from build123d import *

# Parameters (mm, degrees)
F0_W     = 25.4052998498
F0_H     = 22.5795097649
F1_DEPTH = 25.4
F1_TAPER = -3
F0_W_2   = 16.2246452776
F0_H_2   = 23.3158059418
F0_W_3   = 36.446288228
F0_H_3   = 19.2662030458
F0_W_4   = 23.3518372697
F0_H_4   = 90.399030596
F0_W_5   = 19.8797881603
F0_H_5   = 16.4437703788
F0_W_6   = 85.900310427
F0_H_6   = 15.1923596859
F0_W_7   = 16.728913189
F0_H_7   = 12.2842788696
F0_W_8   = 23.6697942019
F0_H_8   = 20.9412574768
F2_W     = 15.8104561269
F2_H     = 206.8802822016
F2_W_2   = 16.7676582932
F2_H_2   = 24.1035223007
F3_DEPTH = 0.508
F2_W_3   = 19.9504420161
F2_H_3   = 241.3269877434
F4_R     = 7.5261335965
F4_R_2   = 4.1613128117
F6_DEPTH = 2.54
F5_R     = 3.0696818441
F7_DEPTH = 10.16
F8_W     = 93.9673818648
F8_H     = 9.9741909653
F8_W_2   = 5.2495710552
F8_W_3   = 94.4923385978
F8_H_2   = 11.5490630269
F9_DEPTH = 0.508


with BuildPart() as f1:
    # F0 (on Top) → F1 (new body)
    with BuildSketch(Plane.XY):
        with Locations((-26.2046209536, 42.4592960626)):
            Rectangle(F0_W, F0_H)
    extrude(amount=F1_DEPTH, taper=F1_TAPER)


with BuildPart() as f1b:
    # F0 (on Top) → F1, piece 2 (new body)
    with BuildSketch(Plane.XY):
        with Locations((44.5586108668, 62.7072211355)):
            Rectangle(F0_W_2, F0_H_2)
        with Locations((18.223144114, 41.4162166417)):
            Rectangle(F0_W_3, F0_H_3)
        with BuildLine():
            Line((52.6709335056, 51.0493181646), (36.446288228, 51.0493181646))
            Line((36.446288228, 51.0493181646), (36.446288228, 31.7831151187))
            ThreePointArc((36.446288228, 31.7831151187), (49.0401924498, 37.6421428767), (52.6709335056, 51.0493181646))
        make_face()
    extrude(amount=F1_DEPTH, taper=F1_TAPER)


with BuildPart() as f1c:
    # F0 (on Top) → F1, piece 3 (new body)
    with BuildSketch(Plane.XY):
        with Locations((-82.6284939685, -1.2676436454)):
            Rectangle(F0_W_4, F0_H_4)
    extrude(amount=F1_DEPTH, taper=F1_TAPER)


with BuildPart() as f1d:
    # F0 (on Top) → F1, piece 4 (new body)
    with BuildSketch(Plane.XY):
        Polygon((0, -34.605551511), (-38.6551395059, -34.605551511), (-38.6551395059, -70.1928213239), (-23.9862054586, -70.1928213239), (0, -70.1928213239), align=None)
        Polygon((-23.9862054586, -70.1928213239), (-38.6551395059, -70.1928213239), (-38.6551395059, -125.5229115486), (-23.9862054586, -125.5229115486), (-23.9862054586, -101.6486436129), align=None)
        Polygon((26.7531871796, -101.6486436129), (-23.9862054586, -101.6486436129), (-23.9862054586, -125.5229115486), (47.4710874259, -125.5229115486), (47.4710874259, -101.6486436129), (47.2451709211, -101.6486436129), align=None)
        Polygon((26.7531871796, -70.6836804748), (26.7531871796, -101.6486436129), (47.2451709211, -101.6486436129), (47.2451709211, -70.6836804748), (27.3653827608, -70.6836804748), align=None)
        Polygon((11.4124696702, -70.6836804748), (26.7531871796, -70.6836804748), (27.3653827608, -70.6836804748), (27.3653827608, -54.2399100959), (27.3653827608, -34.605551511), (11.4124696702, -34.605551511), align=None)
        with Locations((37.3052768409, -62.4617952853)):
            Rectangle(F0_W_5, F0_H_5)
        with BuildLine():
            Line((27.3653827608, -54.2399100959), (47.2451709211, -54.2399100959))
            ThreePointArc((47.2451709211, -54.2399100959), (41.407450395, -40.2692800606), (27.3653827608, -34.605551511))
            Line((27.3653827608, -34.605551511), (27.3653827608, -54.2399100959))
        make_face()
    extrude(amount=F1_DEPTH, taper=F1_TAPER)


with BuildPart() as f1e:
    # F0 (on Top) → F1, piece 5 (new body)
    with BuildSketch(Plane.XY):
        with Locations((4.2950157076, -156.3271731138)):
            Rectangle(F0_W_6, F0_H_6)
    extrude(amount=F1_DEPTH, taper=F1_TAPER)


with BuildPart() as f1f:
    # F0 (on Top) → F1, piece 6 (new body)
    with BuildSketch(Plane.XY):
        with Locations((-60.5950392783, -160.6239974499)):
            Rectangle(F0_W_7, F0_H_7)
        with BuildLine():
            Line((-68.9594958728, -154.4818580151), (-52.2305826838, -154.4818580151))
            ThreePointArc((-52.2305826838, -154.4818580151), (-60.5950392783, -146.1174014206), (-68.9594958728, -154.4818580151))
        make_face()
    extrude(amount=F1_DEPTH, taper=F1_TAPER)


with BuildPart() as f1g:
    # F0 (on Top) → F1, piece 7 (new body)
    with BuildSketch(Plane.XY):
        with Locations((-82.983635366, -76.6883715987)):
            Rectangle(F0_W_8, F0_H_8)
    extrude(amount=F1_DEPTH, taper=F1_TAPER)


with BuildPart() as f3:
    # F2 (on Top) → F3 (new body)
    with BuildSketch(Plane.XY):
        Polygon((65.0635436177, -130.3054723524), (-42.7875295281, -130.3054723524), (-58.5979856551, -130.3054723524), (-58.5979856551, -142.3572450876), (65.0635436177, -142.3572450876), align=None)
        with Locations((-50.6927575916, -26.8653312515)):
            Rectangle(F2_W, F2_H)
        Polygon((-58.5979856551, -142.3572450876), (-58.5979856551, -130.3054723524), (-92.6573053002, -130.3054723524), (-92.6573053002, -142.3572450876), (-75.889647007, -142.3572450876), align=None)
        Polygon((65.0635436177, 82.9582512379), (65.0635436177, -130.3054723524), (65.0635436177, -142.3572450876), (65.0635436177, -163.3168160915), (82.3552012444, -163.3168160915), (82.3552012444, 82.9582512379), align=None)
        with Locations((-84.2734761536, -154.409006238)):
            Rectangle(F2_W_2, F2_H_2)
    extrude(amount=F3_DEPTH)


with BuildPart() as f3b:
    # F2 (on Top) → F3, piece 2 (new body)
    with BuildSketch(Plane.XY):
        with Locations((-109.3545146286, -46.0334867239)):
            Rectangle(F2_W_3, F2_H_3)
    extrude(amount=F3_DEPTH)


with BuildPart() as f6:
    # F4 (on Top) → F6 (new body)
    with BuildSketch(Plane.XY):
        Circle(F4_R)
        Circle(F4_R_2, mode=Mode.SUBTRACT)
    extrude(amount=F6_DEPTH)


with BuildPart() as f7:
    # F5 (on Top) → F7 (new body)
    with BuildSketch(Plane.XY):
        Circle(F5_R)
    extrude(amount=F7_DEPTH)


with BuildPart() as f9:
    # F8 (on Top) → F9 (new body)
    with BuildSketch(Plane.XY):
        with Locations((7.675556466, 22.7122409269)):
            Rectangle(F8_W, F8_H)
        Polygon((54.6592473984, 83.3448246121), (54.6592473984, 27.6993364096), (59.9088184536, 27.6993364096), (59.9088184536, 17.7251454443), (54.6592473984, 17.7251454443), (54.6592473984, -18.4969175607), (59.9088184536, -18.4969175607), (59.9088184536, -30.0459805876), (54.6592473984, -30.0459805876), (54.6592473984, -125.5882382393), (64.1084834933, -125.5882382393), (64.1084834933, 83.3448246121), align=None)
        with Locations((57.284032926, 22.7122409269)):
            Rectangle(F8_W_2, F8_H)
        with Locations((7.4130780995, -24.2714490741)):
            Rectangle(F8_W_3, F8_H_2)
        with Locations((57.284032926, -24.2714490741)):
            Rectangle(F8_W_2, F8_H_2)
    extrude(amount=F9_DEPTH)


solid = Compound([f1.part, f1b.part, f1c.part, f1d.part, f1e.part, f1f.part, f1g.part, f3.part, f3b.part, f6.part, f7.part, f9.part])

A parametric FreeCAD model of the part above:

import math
import FreeCAD as App
import Part
import Sketcher

V = App.Vector


def add_polygon(sketch, points):
    """Adds a closed chain of lines whose ends are joined by coincident constraints."""
    first, n = sketch.GeometryCount, len(points)
    for a, b in zip(points, points[1:] + points[:1]):
        sketch.addGeometry(Part.LineSegment(App.Vector(*a, 0), App.Vector(*b, 0)), False)
    for i in range(n):
        sketch.addConstraint(Sketcher.Constraint("Coincident", first + i, 2, first + (i + 1) % n, 1))

doc = App.newDocument("Part")
params = doc.addObject("Spreadsheet::Sheet", "Params")
for row, (alias, value) in enumerate([
    ("pad1_length", "1 in"),
    ("pad1_taper", "3 deg"),
    ("pad2_length", "1 in"),
    ("pad2_taper", "3 deg"),
    ("pad3_length", "1 in"),
    ("pad3_taper", "3 deg"),
    ("pad4_length", "1 in"),
    ("pad4_taper", "3 deg"),
    ("pad5_length", "1 in"),
    ("pad5_taper", "3 deg"),
    ("pad6_length", "1 in"),
    ("pad6_taper", "3 deg"),
    ("pad7_length", "1 in"),
    ("pad7_taper", "3 deg"),
    ("pad8_length", "0.02 in"),
    ("pad9_length", "0.02 in"),
    ("pad10_length", "0.1 in"),
    ("pad11_length", "0.4 in"),
    ("pad12_length", "0.02 in"),
], start=1):
    params.set(f"A{row}", alias)
    params.set(f"B{row}", "=" + value)
    params.setAlias(f"B{row}", alias)

body = doc.addObject("PartDesign::Body", "Body")

# Sketch on XY plane
sketch1 = body.newObject("Sketcher::SketchObject", "Sketch")
sketch1.AttachmentSupport = (doc.getObject("XY_Plane"), [""])
sketch1.MapMode = "FlatFace"
add_polygon(sketch1, [(-39, 54), (-39, 31), (-14, 31), (-14, 54)])  # lines 0-3
sketch1.addConstraint([
    Sketcher.Constraint("Vertical", 0),
    Sketcher.Constraint("Horizontal", 1),
    Sketcher.Constraint("Vertical", 2),
    Sketcher.Constraint("Horizontal", 3),
    Sketcher.Constraint("DistanceX", 1, 1, 1, 2, 25.4053),
    Sketcher.Constraint("DistanceY", 0, 2, 0, 1, 22.57951),
    Sketcher.Constraint("DistanceX", 0, 2, -1, 1, 38.907271),
    Sketcher.Constraint("DistanceY", -1, 1, 0, 2, 31.169541),
])
pad1 = body.newObject("PartDesign::Pad", "Pad")
pad1.Profile = sketch1
pad1.setExpression("Length", "Params.pad1_length")
pad1.setExpression("TaperAngle", "Params.pad1_taper")
body2 = doc.addObject("PartDesign::Body", "Body001")

# Sketch on XY plane
sketch2 = body2.newObject("Sketcher::SketchObject", "Sketch001")
sketch2.AttachmentSupport = (doc.getObject("XY_Plane001"), [""])
sketch2.MapMode = "FlatFace"
sketch2.addGeometry([
    Part.LineSegment(V(36, 74, 0), V(36, 51, 0)),  # 0
    Part.LineSegment(V(36, 51, 0), V(0, 51, 0)),  # 1
    Part.LineSegment(V(0, 51, 0), V(0, 32, 0)),  # 2
    Part.LineSegment(V(0, 32, 0), V(36, 32, 0)),  # 3
    Part.ArcOfCircle(Part.Circle(V(36, 48, 0), V(0, 0, 1), 16), math.radians(-90), math.radians(10)),  # 4
    Part.LineSegment(V(53, 51, 0), V(53, 74, 0)),  # 5
    Part.LineSegment(V(53, 74, 0), V(36, 74, 0)),  # 6
], False)
sketch2.addConstraint([
    Sketcher.Constraint("Coincident", 0, 2, 1, 1),
    Sketcher.Constraint("Coincident", 1, 2, 2, 1),
    Sketcher.Constraint("Coincident", 2, 2, 3, 1),
    Sketcher.Constraint("Tangent", 3, 2, 4, 1),
    Sketcher.Constraint("Coincident", 4, 2, 5, 1),
    Sketcher.Constraint("Coincident", 5, 2, 6, 1),
    Sketcher.Constraint("Coincident", 6, 2, 0, 1),
    Sketcher.Constraint("Vertical", 0),
    Sketcher.Constraint("Horizontal", 1),
    Sketcher.Constraint("Vertical", 2),
    Sketcher.Constraint("Horizontal", 3),
    Sketcher.Constraint("Vertical", 5),
    Sketcher.Constraint("Horizontal", 6),
    Sketcher.Constraint("PointOnObject", 1, 2, -2),
    Sketcher.Constraint("Horizontal", 1, 2, 4, 2),
    Sketcher.Constraint("Vertical", 4, 3, 0, 2),
    Sketcher.Constraint("Radius", 4, 16.464731),
    Sketcher.Constraint("DistanceX", 1, 2, 1, 1, 36.446288),
    Sketcher.Constraint("DistanceX", 6, 2, 6, 1, 16.224645),
    Sketcher.Constraint("DistanceY", 0, 2, 0, 1, 23.315806),
    Sketcher.Constraint("DistanceY", -1, 1, 0, 2, 51.049318),
])
pad2 = body2.newObject("PartDesign::Pad", "Pad001")
pad2.Profile = sketch2
pad2.setExpression("Length", "Params.pad2_length")
pad2.setExpression("TaperAngle", "Params.pad2_taper")
body3 = doc.addObject("PartDesign::Body", "Body002")

# Sketch on XY plane
sketch3 = body3.newObject("Sketcher::SketchObject", "Sketch002")
sketch3.AttachmentSupport = (doc.getObject("XY_Plane002"), [""])
sketch3.MapMode = "FlatFace"
add_polygon(sketch3, [(-94, 44), (-94, -46), (-71, -46), (-71, 44)])  # lines 0-3
sketch3.addConstraint([
    Sketcher.Constraint("Vertical", 0),
    Sketcher.Constraint("Horizontal", 1),
    Sketcher.Constraint("Vertical", 2),
    Sketcher.Constraint("Horizontal", 3),
    Sketcher.Constraint("DistanceY", 0, 2, 0, 1, 90.399031),
    Sketcher.Constraint("DistanceX", 1, 1, 1, 2, 23.351837),
    Sketcher.Constraint("DistanceY", 0, 2, -1, 1, 46.467159),
    Sketcher.Constraint("DistanceX", 0, 2, -1, 1, 94.304413),
])
pad3 = body3.newObject("PartDesign::Pad", "Pad002")
pad3.Profile = sketch3
pad3.setExpression("Length", "Params.pad3_length")
pad3.setExpression("TaperAngle", "Params.pad3_taper")
body4 = doc.addObject("PartDesign::Body", "Body003")

# Sketch on XY plane
sketch4 = body4.newObject("Sketcher::SketchObject", "Sketch003")
sketch4.AttachmentSupport = (doc.getObject("XY_Plane003"), [""])
sketch4.MapMode = "FlatFace"
sketch4.addGeometry([
    Part.LineSegment(V(0, -34.61, 0), V(-38.66, -34.61, 0)),  # 0
    Part.LineSegment(V(-38.66, -34.61, 0), V(-38.66, -125.52, 0)),  # 1
    Part.LineSegment(V(-38.66, -125.52, 0), V(47.47, -125.52, 0)),  # 2
    Part.LineSegment(V(47.47, -125.52, 0), V(47.47, -101.65, 0)),  # 3
    Part.LineSegment(V(47.47, -101.65, 0), V(47.25, -101.65, 0)),  # 4
    Part.LineSegment(V(47.25, -101.65, 0), V(47.25, -70.68, 0)),  # 5
    Part.LineSegment(V(47.25, -70.68, 0), V(47.25, -54.24, 0)),  # 6
    Part.ArcOfCircle(Part.Circle(V(27.61, -54.24, 0), V(0, 0, 1), 19.64), math.radians(0), math.radians(91)),  # 7
    Part.LineSegment(V(27.37, -34.61, 0), V(11.41, -34.61, 0)),  # 8
    Part.LineSegment(V(11.41, -34.61, 0), V(11.41, -70.68, 0)),  # 9
    Part.LineSegment(V(11.41, -70.68, 0), V(26.75, -70.68, 0)),  # 10
    Part.LineSegment(V(26.75, -70.68, 0), V(26.75, -101.65, 0)),  # 11
    Part.LineSegment(V(26.75, -101.65, 0), V(-23.99, -101.65, 0)),  # 12
    Part.LineSegment(V(-23.99, -101.65, 0), V(-23.99, -70.19, 0)),  # 13
    Part.LineSegment(V(-23.99, -70.19, 0), V(0, -70.19, 0)),  # 14
    Part.LineSegment(V(0, -70.19, 0), V(0, -34.61, 0)),  # 15
], False)
sketch4.addConstraint([
    Sketcher.Constraint("Coincident", 0, 2, 1, 1),
    Sketcher.Constraint("Coincident", 1, 2, 2, 1),
    Sketcher.Constraint("Coincident", 2, 2, 3, 1),
    Sketcher.Constraint("Coincident", 3, 2, 4, 1),
    Sketcher.Constraint("Coincident", 4, 2, 5, 1),
    Sketcher.Constraint("Coincident", 5, 2, 6, 1),
    Sketcher.Constraint("Tangent", 6, 2, 7, 1),
    Sketcher.Constraint("Coincident", 7, 2, 8, 1),
    Sketcher.Constraint("Coincident", 8, 2, 9, 1),
    Sketcher.Constraint("Coincident", 9, 2, 10, 1),
    Sketcher.Constraint("Coincident", 10, 2, 11, 1),
    Sketcher.Constraint("Coincident", 11, 2, 12, 1),
    Sketcher.Constraint("Coincident", 12, 2, 13, 1),
    Sketcher.Constraint("Coincident", 13, 2, 14, 1),
    Sketcher.Constraint("Coincident", 14, 2, 15, 1),
    Sketcher.Constraint("Coincident", 15, 2, 0, 1),
    Sketcher.Constraint("Horizontal", 0),
    Sketcher.Constraint("Vertical", 1),
    Sketcher.Constraint("Horizontal", 2),
    Sketcher.Constraint("Vertical", 3),
    Sketcher.Constraint("Horizontal", 4),
    Sketcher.Constraint("Vertical", 5),
    Sketcher.Constraint("Vertical", 6),
    Sketcher.Constraint("Horizontal", 8),
    Sketcher.Constraint("Vertical", 9),
    Sketcher.Constraint("Horizontal", 10),
    Sketcher.Constraint("Vertical", 11),
    Sketcher.Constraint("Horizontal", 12),
    Sketcher.Constraint("Vertical", 13),
    Sketcher.Constraint("Horizontal", 14),
    Sketcher.Constraint("Vertical", 15),
    Sketcher.Constraint("PointOnObject", 14, 2, -2),
    Sketcher.Constraint("Horizontal", 0, 2, 7, 2),
    Sketcher.Constraint("Horizontal", 5, 2, 9, 2),
    Sketcher.Constraint("Horizontal", 4, 2, 11, 2),
    Sketcher.Constraint("Radius", 7, 19.635874),
    Sketcher.Constraint("DistanceX", 0, 2, 0, 1, 38.65514),
    Sketcher.Constraint("DistanceY", 1, 2, 1, 1, 90.91736),
    Sketcher.Constraint("DistanceY", 6, 1, 6, 2, 16.44377),
    Sketcher.Constraint("DistanceY", 9, 2, 9, 1, 36.078129),
    Sketcher.Constraint("DistanceY", 15, 1, 15, 2, 35.58727),
    Sketcher.Constraint("DistanceX", 8, 2, 6, 2, 35.832701),
    Sketcher.Constraint("DistanceX", 11, 2, 3, 2, 20.7179),
    Sketcher.Constraint("DistanceX", 2, 1, 2, 2, 86.126227),
    Sketcher.Constraint("DistanceX", 4, 2, 4, 1, 0.225917),
    Sketcher.Constraint("DistanceX", 12, 2, 12, 1, 50.739393),
    Sketcher.Constraint("DistanceY", 3, 1, 3, 2, 23.874268),
    Sketcher.Constraint("DistanceY", 7, 3, -1, 1, 54.23991),
])
pad4 = body4.newObject("PartDesign::Pad", "Pad003")
pad4.Profile = sketch4
pad4.setExpression("Length", "Params.pad4_length")
pad4.setExpression("TaperAngle", "Params.pad4_taper")
body5 = doc.addObject("PartDesign::Body", "Body004")

# Sketch on XY plane
sketch5 = body5.newObject("Sketcher::SketchObject", "Sketch004")
sketch5.AttachmentSupport = (doc.getObject("XY_Plane004"), [""])
sketch5.MapMode = "FlatFace"
add_polygon(sketch5, [(-39, -149), (-39, -164), (47, -164), (47, -149)])  # lines 0-3
sketch5.addConstraint([
    Sketcher.Constraint("Vertical", 0),
    Sketcher.Constraint("Horizontal", 1),
    Sketcher.Constraint("Vertical", 2),
    Sketcher.Constraint("Horizontal", 3),
    Sketcher.Constraint("DistanceX", 1, 1, 1, 2, 85.90031),
    Sketcher.Constraint("DistanceY", 0, 2, 0, 1, 15.19236),
    Sketcher.Constraint("DistanceX", 0, 2, -1, 1, 38.65514),
    Sketcher.Constraint("DistanceY", 0, 2, -1, 1, 163.923353),
])
pad5 = body5.newObject("PartDesign::Pad", "Pad004")
pad5.Profile = sketch5
pad5.setExpression("Length", "Params.pad5_length")
pad5.setExpression("TaperAngle", "Params.pad5_taper")
body6 = doc.addObject("PartDesign::Body", "Body005")

# Sketch on XY plane
sketch6 = body6.newObject("Sketcher::SketchObject", "Sketch005")
sketch6.AttachmentSupport = (doc.getObject("XY_Plane005"), [""])
sketch6.MapMode = "FlatFace"
sketch6.addGeometry([
    Part.LineSegment(V(-69, -154, 0), V(-69, -167, 0)),
    Part.LineSegment(V(-69, -167, 0), V(-52, -167, 0)),
    Part.LineSegment(V(-52, -167, 0), V(-52, -154, 0)),
    Part.ArcOfCircle(Part.Circle(V(-61, -154, 0), V(0, 0, 1), 8), math.radians(0), math.radians(180)),
], False)
sketch6.addConstraint([
    Sketcher.Constraint("Coincident", 0, 2, 1, 1),
    Sketcher.Constraint("Coincident", 1, 2, 2, 1),
    Sketcher.Constraint("Tangent", 2, 2, 3, 1),
    Sketcher.Constraint("Tangent", 3, 2, 0, 1),
    Sketcher.Constraint("Vertical", 0),
    Sketcher.Constraint("Horizontal", 1),
    Sketcher.Constraint("Vertical", 2),
    Sketcher.Constraint("Radius", 3, 8.364457),
    Sketcher.Constraint("DistanceY", 0, 2, 0, 1, 12.284279),
    Sketcher.Constraint("DistanceX", 3, 3, -1, 1, 60.595039),
    Sketcher.Constraint("DistanceY", 3, 3, -1, 1, 154.481858),
])
pad6 = body6.newObject("PartDesign::Pad", "Pad005")
pad6.Profile = sketch6
pad6.setExpression("Length", "Params.pad6_length")
pad6.setExpression("TaperAngle", "Params.pad6_taper")
body7 = doc.addObject("PartDesign::Body", "Body006")

# Sketch on XY plane
sketch7 = body7.newObject("Sketcher::SketchObject", "Sketch006")
sketch7.AttachmentSupport = (doc.getObject("XY_Plane006"), [""])
sketch7.MapMode = "FlatFace"
add_polygon(sketch7, [(-95, -66), (-95, -87), (-71, -87), (-71, -66)])  # lines 0-3
sketch7.addConstraint([
    Sketcher.Constraint("Vertical", 0),
    Sketcher.Constraint("Horizontal", 1),
    Sketcher.Constraint("Vertical", 2),
    Sketcher.Constraint("Horizontal", 3),
    Sketcher.Constraint("DistanceY", 0, 2, -1, 1, 87.159),
    Sketcher.Constraint("DistanceX", 1, 1, 1, 2, 23.669794),
    Sketcher.Constraint("DistanceY", 0, 2, 0, 1, 20.941257),
    Sketcher.Constraint("DistanceX", 1, 2, -1, 1, 71.148738),
])
pad7 = body7.newObject("PartDesign::Pad", "Pad006")
pad7.Profile = sketch7
pad7.setExpression("Length", "Params.pad7_length")
pad7.setExpression("TaperAngle", "Params.pad7_taper")
body8 = doc.addObject("PartDesign::Body", "Body007")

# Sketch on XY plane
sketch8 = body8.newObject("Sketcher::SketchObject", "Sketch007")
sketch8.AttachmentSupport = (doc.getObject("XY_Plane007"), [""])
sketch8.MapMode = "FlatFace"
add_polygon(sketch8, [(65, -130), (-43, -130), (-43, 77), (-59, 77), (-59, -130), (-93, -130), (-93, -166), (-76, -166), (-76, -142), (65, -142), (65, -163), (82, -163), (82, 83), (65, 83)])  # lines 0-13
sketch8.addConstraint([
    Sketcher.Constraint("Horizontal", 0),
    Sketcher.Constraint("Vertical", 1),
    Sketcher.Constraint("Horizontal", 2),
    Sketcher.Constraint("Vertical", 3),
    Sketcher.Constraint("Horizontal", 4),
    Sketcher.Constraint("Vertical", 5),
    Sketcher.Constraint("Horizontal", 6),
    Sketcher.Constraint("Vertical", 7),
    Sketcher.Constraint("Horizontal", 8),
    Sketcher.Constraint("Vertical", 9),
    Sketcher.Constraint("Horizontal", 10),
    Sketcher.Constraint("Vertical", 11),
    Sketcher.Constraint("Horizontal", 12),
    Sketcher.Constraint("Vertical", 13),
    Sketcher.Constraint("Horizontal", 0, 2, 3, 2),
    Sketcher.Constraint("Vertical", 9, 2, 12, 2),
    Sketcher.Constraint("DistanceX", 4, 2, 4, 1, 34.05932),
    Sketcher.Constraint("DistanceX", 6, 1, 6, 2, 16.767658),
    Sketcher.Constraint("DistanceX", 8, 1, 8, 2, 140.953191),
    Sketcher.Constraint("DistanceY", 9, 2, 9, 1, 20.959571),
    Sketcher.Constraint("DistanceX", -1, 1, 10, 2, 82.355201),
    Sketcher.Constraint("DistanceX", 0, 2, 0, 1, 107.851073),
    Sketcher.Constraint("DistanceX", 10, 1, 10, 2, 17.291658),
    Sketcher.Constraint("DistanceY", 1, 1, 1, 2, 206.880282),
    Sketcher.Constraint("DistanceY", 5, 2, 5, 1, 36.155295),
    Sketcher.Constraint("DistanceY", 7, 1, 7, 2, 24.103522),
    Sketcher.Constraint("DistanceY", 11, 1, 11, 2, 246.275067),
    Sketcher.Constraint("DistanceY", -1, 1, 1, 2, 76.57481),
])
pad8 = body8.newObject("PartDesign::Pad", "Pad007")
pad8.Profile = sketch8
pad8.setExpression("Length", "Params.pad8_length")
body9 = doc.addObject("PartDesign::Body", "Body008")

# Sketch on XY plane
sketch9 = body9.newObject("Sketcher::SketchObject", "Sketch008")
sketch9.AttachmentSupport = (doc.getObject("XY_Plane008"), [""])
sketch9.MapMode = "FlatFace"
add_polygon(sketch9, [(-119, 75), (-119, -167), (-99, -167), (-99, 75)])  # lines 0-3
sketch9.addConstraint([
    Sketcher.Constraint("Vertical", 0),
    Sketcher.Constraint("Horizontal", 1),
    Sketcher.Constraint("Vertical", 2),
    Sketcher.Constraint("Horizontal", 3),
    Sketcher.Constraint("DistanceX", 1, 1, 1, 2, 19.950442),
    Sketcher.Constraint("DistanceY", 0, 2, 0, 1, 241.326988),
    Sketcher.Constraint("DistanceY", 0, 2, -1, 1, 166.696981),
    Sketcher.Constraint("DistanceX", 0, 2, -1, 1, 119.329736),
])
pad9 = body9.newObject("PartDesign::Pad", "Pad008")
pad9.Profile = sketch9
pad9.setExpression("Length", "Params.pad9_length")
body10 = doc.addObject("PartDesign::Body", "Body009")

# Sketch on XY plane
sketch10 = body10.newObject("Sketcher::SketchObject", "Sketch009")
sketch10.AttachmentSupport = (doc.getObject("XY_Plane009"), [""])
sketch10.MapMode = "FlatFace"
sketch10.addGeometry([
    Part.Circle(V(0, 0, 0), V(0, 0, 1), 7.5),
    Part.Circle(V(0, 0, 0), V(0, 0, 1), 4.2),
], False)
sketch10.addConstraint([
    Sketcher.Constraint("Coincident", 0, 3, -1, 1),
    Sketcher.Constraint("Coincident", 1, 3, -1, 1),
    Sketcher.Constraint("Diameter", 0, 15.052267),
    Sketcher.Constraint("Diameter", 1, 8.322626),
])
pad10 = body10.newObject("PartDesign::Pad", "Pad009")
pad10.Profile = sketch10
pad10.setExpression("Length", "Params.pad10_length")
body11 = doc.addObject("PartDesign::Body", "Body010")

# Sketch on XY plane
sketch11 = body11.newObject("Sketcher::SketchObject", "Sketch010")
sketch11.AttachmentSupport = (doc.getObject("XY_Plane010"), [""])
sketch11.MapMode = "FlatFace"
sketch11.addGeometry(Part.Circle(V(0, 0, 0), V(0, 0, 1), 3.1), False)
sketch11.addConstraint([
    Sketcher.Constraint("Coincident", 0, 3, -1, 1),
    Sketcher.Constraint("Diameter", 0, 6.139364),
])
pad11 = body11.newObject("PartDesign::Pad", "Pad010")
pad11.Profile = sketch11
pad11.setExpression("Length", "Params.pad11_length")
body12 = doc.addObject("PartDesign::Body", "Body011")

# Sketch on XY plane
sketch12 = body12.newObject("Sketcher::SketchObject", "Sketch011")
sketch12.AttachmentSupport = (doc.getObject("XY_Plane011"), [""])
sketch12.MapMode = "FlatFace"
add_polygon(sketch12, [(-39, 28), (-39, 18), (55, 18), (55, -18), (-40, -18), (-40, -30), (55, -30), (55, -126), (64, -126), (64, 83), (55, 83), (55, 28)])  # lines 0-11
sketch12.addConstraint([
    Sketcher.Constraint("Vertical", 0),
    Sketcher.Constraint("Horizontal", 1),
    Sketcher.Constraint("Vertical", 2),
    Sketcher.Constraint("Horizontal", 3),
    Sketcher.Constraint("Vertical", 4),
    Sketcher.Constraint("Horizontal", 5),
    Sketcher.Constraint("Vertical", 6),
    Sketcher.Constraint("Horizontal", 7),
    Sketcher.Constraint("Vertical", 8),
    Sketcher.Constraint("Horizontal", 9),
    Sketcher.Constraint("Vertical", 10),
    Sketcher.Constraint("Horizontal", 11),
    Sketcher.Constraint("Vertical", 2, 2, 5, 2),
    Sketcher.Constraint("Vertical", 6, 2, 9, 2),
    Sketcher.Constraint("DistanceX", 1, 1, 1, 2, 93.967382),
    Sketcher.Constraint("DistanceX", 3, 2, 3, 1, 94.492339),
    Sketcher.Constraint("DistanceY", 0, 2, 0, 1, 9.974191),
    Sketcher.Constraint("DistanceY", 10, 2, 10, 1, 55.645488),
    Sketcher.Constraint("DistanceX", 7, 1, 7, 2, 9.449236),
    Sketcher.Constraint("DistanceY", 2, 2, 2, 1, 36.222063),
    Sketcher.Constraint("DistanceY", 4, 2, 4, 1, 11.549063),
    Sketcher.Constraint("DistanceY", 6, 2, 6, 1, 95.542258),
    Sketcher.Constraint("DistanceX", 3, 2, -1, 1, 39.833091),
    Sketcher.Constraint("DistanceY", 4, 2, -1, 1, 30.045981),
])
pad12 = body12.newObject("PartDesign::Pad", "Pad011")
pad12.Profile = sketch12
pad12.setExpression("Length", "Params.pad12_length")

doc.recompute()
